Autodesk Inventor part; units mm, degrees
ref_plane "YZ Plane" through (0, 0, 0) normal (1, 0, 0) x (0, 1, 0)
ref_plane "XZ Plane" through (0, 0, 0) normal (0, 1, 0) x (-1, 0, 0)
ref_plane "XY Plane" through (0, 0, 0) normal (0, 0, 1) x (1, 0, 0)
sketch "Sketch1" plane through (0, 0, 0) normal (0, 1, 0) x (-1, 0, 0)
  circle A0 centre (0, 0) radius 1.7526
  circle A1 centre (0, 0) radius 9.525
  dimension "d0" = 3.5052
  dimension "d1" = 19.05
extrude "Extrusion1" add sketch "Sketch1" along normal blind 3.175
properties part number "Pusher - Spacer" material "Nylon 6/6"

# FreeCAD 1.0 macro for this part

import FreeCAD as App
import Part
import Sketcher
from FreeCAD import Vector
Q = App.Units.Quantity

doc = App.newDocument("Part")
body = doc.addObject("PartDesign::Body", "Body")

# Sketch on XZ plane
sketch1 = body.newObject("Sketcher::SketchObject", "Sketch")
sketch1.AttachmentSupport = (doc.getObject("XZ_Plane"), [""])
sketch1.MapMode = "FlatFace"
sketch1.addGeometry([
    Part.Circle(Vector(0, 0, 0), Vector(0, 0, 1), 9.5),
    Part.Circle(Vector(0, 0, 0), Vector(0, 0, 1), 1.8),
], False)
sketch1.addConstraint([
    Sketcher.Constraint("Coincident", 0, 3, -1, 1),
    Sketcher.Constraint("Coincident", 1, 3, -1, 1),
    Sketcher.Constraint("Diameter", 0, Q("0.75 in")),
    Sketcher.Constraint("Diameter", 1, Q("0.138 in")),
])
pad1 = body.newObject("PartDesign::Pad", "Pad")
pad1.Profile = sketch1
pad1.Length = Q("0.125 in")
pad1.Reversed = True

doc.recompute()
